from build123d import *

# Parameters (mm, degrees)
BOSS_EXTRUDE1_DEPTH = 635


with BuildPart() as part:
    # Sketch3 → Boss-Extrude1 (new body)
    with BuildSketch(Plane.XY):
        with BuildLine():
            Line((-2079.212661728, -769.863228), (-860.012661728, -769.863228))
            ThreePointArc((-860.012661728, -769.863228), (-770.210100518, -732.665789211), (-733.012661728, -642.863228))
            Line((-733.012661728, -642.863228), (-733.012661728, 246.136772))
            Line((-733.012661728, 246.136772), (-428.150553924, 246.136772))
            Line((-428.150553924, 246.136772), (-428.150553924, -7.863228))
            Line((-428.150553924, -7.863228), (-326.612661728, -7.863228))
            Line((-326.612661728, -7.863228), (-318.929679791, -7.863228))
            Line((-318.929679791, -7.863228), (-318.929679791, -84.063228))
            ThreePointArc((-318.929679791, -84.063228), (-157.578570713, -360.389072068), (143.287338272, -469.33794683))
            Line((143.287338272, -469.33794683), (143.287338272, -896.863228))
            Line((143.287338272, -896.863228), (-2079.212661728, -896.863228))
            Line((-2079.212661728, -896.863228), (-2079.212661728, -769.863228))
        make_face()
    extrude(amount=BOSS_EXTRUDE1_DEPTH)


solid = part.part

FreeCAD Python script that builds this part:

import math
import FreeCAD as App
import Part
import Sketcher
from FreeCAD import Vector
Q = App.Units.Quantity

doc = App.newDocument("Part")
body = doc.addObject("PartDesign::Body", "Body")

sketch1 = doc.addObject("Sketcher::SketchObject", "Sketch")
body.addObject(sketch1)
sketch1.AttachmentSupport = (doc.XY_Plane, [""])
sketch1.MapMode = "FlatFace"
sketch1.addGeometry(Part.LineSegment(Vector(-860.012662, -769.863228, 0), Vector(-2079.212662, -769.863228, 0)), False)
sketch1.addGeometry(Part.LineSegment(Vector(-2079.212662, -769.863228, 0), Vector(-2079.212662, -896.863228, 0)), False)
sketch1.addGeometry(Part.LineSegment(Vector(-2079.212662, -896.863228, 0), Vector(143.287338, -896.863228, 0)), False)
sketch1.addGeometry(Part.LineSegment(Vector(143.287338, -896.863228, 0), Vector(143.287338, -469.337947, 0)), False)
sketch1.addGeometry(Part.ArcOfCircle(Part.Circle(Vector(143.287338, 0.562053, 0), Vector(0, 0, 1), 469.9), math.radians(-169.624875), math.radians(-90)), False)
sketch1.addGeometry(Part.LineSegment(Vector(-318.92968, -84.063228, 0), Vector(-318.92968, -7.863228, 0)), False)
sketch1.addGeometry(Part.LineSegment(Vector(-318.92968, -7.863228, 0), Vector(-428.150554, -7.863228, 0)), False)
sketch1.addGeometry(Part.LineSegment(Vector(-428.150554, -7.863228, 0), Vector(-428.150554, 246.136772, 0)), False)
sketch1.addGeometry(Part.LineSegment(Vector(-428.150554, 246.136772, 0), Vector(-733.012662, 246.136772, 0)), False)
sketch1.addGeometry(Part.LineSegment(Vector(-733.012662, 246.136772, 0), Vector(-733.012662, -642.863228, 0)), False)
sketch1.addGeometry(Part.ArcOfCircle(Part.Circle(Vector(-860.012662, -642.863228, 0), Vector(0, 0, 1), 127), math.radians(-90), math.radians(0)), False)
sketch1.addConstraint(Sketcher.Constraint("Coincident", 0, 2, 1, 1))
sketch1.addConstraint(Sketcher.Constraint("Coincident", 1, 2, 2, 1))
sketch1.addConstraint(Sketcher.Constraint("Coincident", 2, 2, 3, 1))
sketch1.addConstraint(Sketcher.Constraint("Coincident", 3, 2, 4, 2))
sketch1.addConstraint(Sketcher.Constraint("Coincident", 4, 1, 5, 1))
sketch1.addConstraint(Sketcher.Constraint("Coincident", 5, 2, 6, 1))
sketch1.addConstraint(Sketcher.Constraint("Coincident", 6, 2, 7, 1))
sketch1.addConstraint(Sketcher.Constraint("Coincident", 7, 2, 8, 1))
sketch1.addConstraint(Sketcher.Constraint("Coincident", 8, 2, 9, 1))
sketch1.addConstraint(Sketcher.Constraint("Tangent", 9, 2, 10, 2))
sketch1.addConstraint(Sketcher.Constraint("Tangent", 10, 1, 0, 1))
sketch1.addConstraint(Sketcher.Constraint("Horizontal", 0))
sketch1.addConstraint(Sketcher.Constraint("Vertical", 1))
sketch1.addConstraint(Sketcher.Constraint("Horizontal", 2))
sketch1.addConstraint(Sketcher.Constraint("Vertical", 3))
sketch1.addConstraint(Sketcher.Constraint("Vertical", 5))
sketch1.addConstraint(Sketcher.Constraint("Horizontal", 6))
sketch1.addConstraint(Sketcher.Constraint("Vertical", 7))
sketch1.addConstraint(Sketcher.Constraint("Horizontal", 8))
sketch1.addConstraint(Sketcher.Constraint("Vertical", 9))
sketch1.addConstraint(Sketcher.Constraint("Vertical", 4, 3, 2, 2))
sketch1.addConstraint(Sketcher.Constraint("Radius", 10, Q("5 in")))
sketch1.addConstraint(Sketcher.Constraint("Radius", 4, Q("18.5 in")))
sketch1.addConstraint(Sketcher.Constraint("DistanceX", 0, 2, 0, 1, Q("48 in")))
sketch1.addConstraint(Sketcher.Constraint("DistanceY", 1, 2, 1, 1, Q("5 in")))
sketch1.addConstraint(Sketcher.Constraint("DistanceY", 5, 1, 5, 2, Q("3 in")))
sketch1.addConstraint(Sketcher.Constraint("DistanceY", 7, 1, 7, 2, Q("10 in")))
sketch1.addConstraint(Sketcher.Constraint("DistanceY", 9, 2, 9, 1, Q("35 in")))
sketch1.addConstraint(Sketcher.Constraint("DistanceX", 2, 1, 2, 2, Q("87.5 in")))
sketch1.addConstraint(Sketcher.Constraint("DistanceY", 3, 1, 3, 2, Q("427.525281 mm")))
sketch1.addConstraint(Sketcher.Constraint("DistanceX", 6, 2, 6, 1, Q("109.220874 mm")))
sketch1.addConstraint(Sketcher.Constraint("DistanceX", -1, 1, 4, 3, Q("143.287338 mm")))
sketch1.addConstraint(Sketcher.Constraint("DistanceY", 0, 2, -1, 1, Q("769.863228 mm")))
pad1 = doc.addObject("PartDesign::Pad", "Pad")
body.addObject(pad1)
pad1.Profile = sketch1
pad1.Length = Q("25 in")

doc.recompute()
